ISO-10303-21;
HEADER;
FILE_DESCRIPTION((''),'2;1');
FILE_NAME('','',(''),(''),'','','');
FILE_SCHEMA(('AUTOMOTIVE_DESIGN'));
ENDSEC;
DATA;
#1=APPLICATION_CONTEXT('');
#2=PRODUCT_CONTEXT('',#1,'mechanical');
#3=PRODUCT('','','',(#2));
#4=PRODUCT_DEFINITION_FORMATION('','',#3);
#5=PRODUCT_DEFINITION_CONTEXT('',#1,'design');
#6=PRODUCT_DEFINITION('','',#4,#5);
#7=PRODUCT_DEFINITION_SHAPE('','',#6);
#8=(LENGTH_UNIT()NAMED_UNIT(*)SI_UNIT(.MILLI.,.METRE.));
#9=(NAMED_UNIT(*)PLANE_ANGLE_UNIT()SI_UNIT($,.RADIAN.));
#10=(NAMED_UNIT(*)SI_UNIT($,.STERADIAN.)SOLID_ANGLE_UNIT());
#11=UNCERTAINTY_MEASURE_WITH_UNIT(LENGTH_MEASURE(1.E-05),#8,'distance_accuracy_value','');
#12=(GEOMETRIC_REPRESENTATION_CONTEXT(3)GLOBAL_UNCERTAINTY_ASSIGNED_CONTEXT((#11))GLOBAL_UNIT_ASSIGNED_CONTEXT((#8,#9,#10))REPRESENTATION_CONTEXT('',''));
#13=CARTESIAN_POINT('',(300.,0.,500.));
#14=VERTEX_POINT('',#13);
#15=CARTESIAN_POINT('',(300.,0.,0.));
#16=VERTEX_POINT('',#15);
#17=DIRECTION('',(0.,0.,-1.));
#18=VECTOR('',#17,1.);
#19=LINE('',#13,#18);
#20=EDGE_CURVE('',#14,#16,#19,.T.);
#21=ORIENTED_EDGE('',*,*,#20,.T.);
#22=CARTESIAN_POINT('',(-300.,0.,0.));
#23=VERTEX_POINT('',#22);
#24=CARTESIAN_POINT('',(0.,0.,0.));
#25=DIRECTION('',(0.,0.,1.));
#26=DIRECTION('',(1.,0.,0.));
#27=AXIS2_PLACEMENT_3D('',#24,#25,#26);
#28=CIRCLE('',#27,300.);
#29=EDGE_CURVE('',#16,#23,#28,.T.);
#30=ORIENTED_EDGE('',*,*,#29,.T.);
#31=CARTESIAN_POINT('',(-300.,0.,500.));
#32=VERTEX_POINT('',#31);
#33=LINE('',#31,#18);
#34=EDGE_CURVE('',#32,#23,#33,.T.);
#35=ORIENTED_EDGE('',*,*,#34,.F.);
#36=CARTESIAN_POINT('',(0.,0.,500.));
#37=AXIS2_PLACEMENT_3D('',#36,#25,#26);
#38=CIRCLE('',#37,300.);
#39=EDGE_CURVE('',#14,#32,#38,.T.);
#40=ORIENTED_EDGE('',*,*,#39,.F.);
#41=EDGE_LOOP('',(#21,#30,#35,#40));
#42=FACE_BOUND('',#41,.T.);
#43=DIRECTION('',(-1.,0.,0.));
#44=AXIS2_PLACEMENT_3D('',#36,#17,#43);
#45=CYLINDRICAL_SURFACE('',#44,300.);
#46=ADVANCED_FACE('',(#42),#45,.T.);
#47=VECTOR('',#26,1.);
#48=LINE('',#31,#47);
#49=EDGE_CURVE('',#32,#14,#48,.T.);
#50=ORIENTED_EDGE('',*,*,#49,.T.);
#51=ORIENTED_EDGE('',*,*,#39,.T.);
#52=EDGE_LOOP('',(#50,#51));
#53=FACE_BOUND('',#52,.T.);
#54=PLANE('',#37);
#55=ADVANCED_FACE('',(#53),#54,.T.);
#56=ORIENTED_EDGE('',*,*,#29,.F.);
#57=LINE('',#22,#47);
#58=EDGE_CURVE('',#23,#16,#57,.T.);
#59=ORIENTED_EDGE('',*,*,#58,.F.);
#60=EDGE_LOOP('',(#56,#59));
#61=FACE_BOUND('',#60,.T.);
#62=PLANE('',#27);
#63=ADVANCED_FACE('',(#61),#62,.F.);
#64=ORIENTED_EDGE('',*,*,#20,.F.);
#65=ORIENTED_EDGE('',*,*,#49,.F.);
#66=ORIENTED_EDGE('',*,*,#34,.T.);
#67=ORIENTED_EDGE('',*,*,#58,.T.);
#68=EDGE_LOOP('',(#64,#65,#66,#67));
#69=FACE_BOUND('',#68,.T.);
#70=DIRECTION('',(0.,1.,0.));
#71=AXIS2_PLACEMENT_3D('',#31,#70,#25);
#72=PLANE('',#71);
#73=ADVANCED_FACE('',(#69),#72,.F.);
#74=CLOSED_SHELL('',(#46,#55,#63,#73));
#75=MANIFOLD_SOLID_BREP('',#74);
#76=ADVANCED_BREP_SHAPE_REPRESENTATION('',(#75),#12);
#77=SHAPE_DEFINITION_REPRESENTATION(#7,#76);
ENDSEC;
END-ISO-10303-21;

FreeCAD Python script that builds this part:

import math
import FreeCAD as App
import Part
import Sketcher
from FreeCAD import Vector

doc = App.newDocument("Part")
body = doc.addObject("PartDesign::Body", "Body")

# Sketch on XY plane
sketch1 = body.newObject("Sketcher::SketchObject", "Sketch")
sketch1.AttachmentSupport = (doc.getObject("XY_Plane"), [""])
sketch1.MapMode = "FlatFace"
sketch1.addGeometry(Part.LineSegment(Vector(-300, 0, 0), Vector(300, 0, 0)), False)
sketch1.addGeometry(Part.ArcOfCircle(Part.Circle(Vector(0, 0, 0), Vector(0, 0, 1), 300), math.radians(0), math.radians(180)), False)
sketch1.addConstraint(Sketcher.Constraint("Coincident", 0, 1, 1, 2))
sketch1.addConstraint(Sketcher.Constraint("Coincident", 1, 1, 0, 2))
sketch1.addConstraint(Sketcher.Constraint("Horizontal", 0))
sketch1.addConstraint(Sketcher.Constraint("Coincident", 1, 3, -1, 1))
sketch1.addConstraint(Sketcher.Constraint("PointOnObject", 0, 1, -1))
sketch1.addConstraint(Sketcher.Constraint("Radius", 1, 300.0))
pad1 = body.newObject("PartDesign::Pad", "Pad")
pad1.Profile = sketch1
pad1.Length = 500

doc.recompute()
